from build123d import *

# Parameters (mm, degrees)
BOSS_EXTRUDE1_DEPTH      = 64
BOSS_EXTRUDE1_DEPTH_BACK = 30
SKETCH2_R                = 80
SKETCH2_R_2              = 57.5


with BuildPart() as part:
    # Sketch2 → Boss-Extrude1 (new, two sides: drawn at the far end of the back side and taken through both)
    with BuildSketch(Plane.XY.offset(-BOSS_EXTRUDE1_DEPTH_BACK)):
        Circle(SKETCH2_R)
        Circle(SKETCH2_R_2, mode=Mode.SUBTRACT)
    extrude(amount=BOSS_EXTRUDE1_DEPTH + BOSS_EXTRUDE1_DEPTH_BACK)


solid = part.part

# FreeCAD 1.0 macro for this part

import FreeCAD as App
import Part
import Sketcher
from FreeCAD import Vector

doc = App.newDocument("Part")
params = doc.addObject("Spreadsheet::Sheet", "Params")
for row, (alias, value) in enumerate([
    ("sketch1_diameter", "160 mm"),
    ("sketch1_diameter2", "115 mm"),
    ("pad1_length", "64 mm"),
    ("pad1_length2", "30 mm"),
], start=1):
    params.set(f"A{row}", alias)
    params.set(f"B{row}", "=" + value)
    params.setAlias(f"B{row}", alias)

body = doc.addObject("PartDesign::Body", "Body")

sketch1 = body.newObject("Sketcher::SketchObject", "Sketch")
sketch1.AttachmentSupport = (doc.getObject("XY_Plane"), [""])
sketch1.MapMode = "FlatFace"
sketch1.addGeometry(Part.Circle(Vector(0, 0, 0), Vector(0, 0, 1), 80), False)
sketch1.addGeometry(Part.Circle(Vector(0, 0, 0), Vector(0, 0, 1), 57.5), False)
sketch1.addConstraint(Sketcher.Constraint("Coincident", 0, 3, -1, 1))
sketch1.addConstraint(Sketcher.Constraint("Coincident", 1, 3, -1, 1))
sketch1.addConstraint(Sketcher.Constraint("Diameter", 0, 160.0))
sketch1.addConstraint(Sketcher.Constraint("Diameter", 1, 115.0))
sketch1.setExpression("Constraints[2]", "Params.sketch1_diameter")
sketch1.setExpression("Constraints[3]", "Params.sketch1_diameter2")
pad1 = body.newObject("PartDesign::Pad", "Pad")
pad1.Profile = sketch1
pad1.Type = "TwoLengths"
pad1.setExpression("Length", "Params.pad1_length")
pad1.setExpression("Length2", "Params.pad1_length2")

doc.recompute()
